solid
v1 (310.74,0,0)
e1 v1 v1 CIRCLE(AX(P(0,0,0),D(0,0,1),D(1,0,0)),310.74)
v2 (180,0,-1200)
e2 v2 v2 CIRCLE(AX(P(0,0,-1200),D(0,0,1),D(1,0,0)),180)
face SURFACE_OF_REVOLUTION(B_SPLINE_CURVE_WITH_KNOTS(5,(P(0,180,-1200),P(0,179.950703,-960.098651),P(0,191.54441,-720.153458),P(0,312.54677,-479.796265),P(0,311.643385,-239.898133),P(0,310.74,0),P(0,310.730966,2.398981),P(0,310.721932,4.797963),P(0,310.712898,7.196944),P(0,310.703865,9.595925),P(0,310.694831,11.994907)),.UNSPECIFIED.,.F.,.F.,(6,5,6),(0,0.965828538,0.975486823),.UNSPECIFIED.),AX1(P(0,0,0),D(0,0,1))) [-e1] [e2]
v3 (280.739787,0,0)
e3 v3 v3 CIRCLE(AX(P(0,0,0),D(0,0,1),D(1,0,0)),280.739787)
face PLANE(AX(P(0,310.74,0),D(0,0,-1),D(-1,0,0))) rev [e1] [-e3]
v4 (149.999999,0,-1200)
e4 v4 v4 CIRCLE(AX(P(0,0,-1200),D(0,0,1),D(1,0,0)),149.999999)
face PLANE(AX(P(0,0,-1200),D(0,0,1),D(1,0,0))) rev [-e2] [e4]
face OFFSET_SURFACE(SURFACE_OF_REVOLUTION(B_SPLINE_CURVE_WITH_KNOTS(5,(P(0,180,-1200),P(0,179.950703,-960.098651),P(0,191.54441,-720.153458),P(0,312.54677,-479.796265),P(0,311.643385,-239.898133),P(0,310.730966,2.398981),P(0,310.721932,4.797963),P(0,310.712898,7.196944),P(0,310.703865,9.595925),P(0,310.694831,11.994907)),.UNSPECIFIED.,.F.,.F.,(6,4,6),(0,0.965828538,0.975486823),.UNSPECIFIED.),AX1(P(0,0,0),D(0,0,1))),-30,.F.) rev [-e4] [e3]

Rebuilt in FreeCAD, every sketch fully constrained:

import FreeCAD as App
import Part
import Sketcher


def faces_at(feature, points):
    """Names of the faces that lie closest to the given points."""
    faces = feature.Shape.Faces
    near = lambda p: min(range(len(faces)), key=lambda i: faces[i].distToShape(Part.Vertex(*p))[0])
    return sorted({f"Face{near(p) + 1}" for p in points})

doc = App.newDocument("Part")
params = doc.addObject("Spreadsheet::Sheet", "Params")
for row, (alias, value) in enumerate([
    ("revolution_angle", "360 deg"),
    ("thickness_wall", "30 mm"),
], start=1):
    params.set(f"A{row}", alias)
    params.set(f"B{row}", "=" + value)
    params.setAlias(f"B{row}", alias)

body = doc.addObject("PartDesign::Body", "Body")

# Sketch on YZ plane
sketch1 = doc.addObject("Sketcher::SketchObject", "Sketch")
body.addObject(sketch1)
sketch1.AttachmentSupport = (doc.YZ_Plane, [""])
sketch1.MapMode = "FlatFace"
sketch1.addGeometry([
    Part.LineSegment(App.Vector(310.74, 0, 0), App.Vector(0, 0, 0)),
    Part.LineSegment(App.Vector(0, 0, 0), App.Vector(0, -1200, 0)),
    Part.LineSegment(App.Vector(0, -1200, 0), App.Vector(180, -1200, 0)),
    Part.BSplineCurve([App.Vector(310.74, 0, 0), App.Vector(311.643385, -239.898133, 0), App.Vector(312.54677, -479.796265, 0), App.Vector(191.54441, -720.153458, 0), App.Vector(179.950703, -960.098651, 0), App.Vector(180, -1200, 0)], [6, 6], [0, 0.965828538], False, 5, [1, 1, 1, 1, 1, 1], False),
], False)
sketch1.addConstraint([
    Sketcher.Constraint("Block", 3),
    Sketcher.Constraint("Coincident", 0, 2, 1, 1),
    Sketcher.Constraint("Coincident", 1, 2, 2, 1),
    Sketcher.Constraint("Coincident", 2, 2, 3, 2),
    Sketcher.Constraint("Coincident", 3, 1, 0, 1),
    Sketcher.Constraint("Horizontal", 0),
    Sketcher.Constraint("Vertical", 1),
    Sketcher.Constraint("Horizontal", 2),
    Sketcher.Constraint("PointOnObject", 1, 2, -2),
])
revolution = doc.addObject("PartDesign::Revolution", "Revolution")
body.addObject(revolution)
revolution.Profile = sketch1
revolution.ReferenceAxis = (sketch1, ["V_Axis"])
revolution.setExpression("Angle", "Params.revolution_angle")
doc.recompute()

thickness = doc.addObject("PartDesign::Thickness", "Thickness")
body.addObject(thickness)
thickness.Base = (revolution, faces_at(revolution, [(0, 0, 0), (0, 0, -1200)]))
thickness.setExpression("Value", "Params.thickness_wall")
thickness.Reversed = True
thickness.Join = "Intersection"

doc.recompute()
